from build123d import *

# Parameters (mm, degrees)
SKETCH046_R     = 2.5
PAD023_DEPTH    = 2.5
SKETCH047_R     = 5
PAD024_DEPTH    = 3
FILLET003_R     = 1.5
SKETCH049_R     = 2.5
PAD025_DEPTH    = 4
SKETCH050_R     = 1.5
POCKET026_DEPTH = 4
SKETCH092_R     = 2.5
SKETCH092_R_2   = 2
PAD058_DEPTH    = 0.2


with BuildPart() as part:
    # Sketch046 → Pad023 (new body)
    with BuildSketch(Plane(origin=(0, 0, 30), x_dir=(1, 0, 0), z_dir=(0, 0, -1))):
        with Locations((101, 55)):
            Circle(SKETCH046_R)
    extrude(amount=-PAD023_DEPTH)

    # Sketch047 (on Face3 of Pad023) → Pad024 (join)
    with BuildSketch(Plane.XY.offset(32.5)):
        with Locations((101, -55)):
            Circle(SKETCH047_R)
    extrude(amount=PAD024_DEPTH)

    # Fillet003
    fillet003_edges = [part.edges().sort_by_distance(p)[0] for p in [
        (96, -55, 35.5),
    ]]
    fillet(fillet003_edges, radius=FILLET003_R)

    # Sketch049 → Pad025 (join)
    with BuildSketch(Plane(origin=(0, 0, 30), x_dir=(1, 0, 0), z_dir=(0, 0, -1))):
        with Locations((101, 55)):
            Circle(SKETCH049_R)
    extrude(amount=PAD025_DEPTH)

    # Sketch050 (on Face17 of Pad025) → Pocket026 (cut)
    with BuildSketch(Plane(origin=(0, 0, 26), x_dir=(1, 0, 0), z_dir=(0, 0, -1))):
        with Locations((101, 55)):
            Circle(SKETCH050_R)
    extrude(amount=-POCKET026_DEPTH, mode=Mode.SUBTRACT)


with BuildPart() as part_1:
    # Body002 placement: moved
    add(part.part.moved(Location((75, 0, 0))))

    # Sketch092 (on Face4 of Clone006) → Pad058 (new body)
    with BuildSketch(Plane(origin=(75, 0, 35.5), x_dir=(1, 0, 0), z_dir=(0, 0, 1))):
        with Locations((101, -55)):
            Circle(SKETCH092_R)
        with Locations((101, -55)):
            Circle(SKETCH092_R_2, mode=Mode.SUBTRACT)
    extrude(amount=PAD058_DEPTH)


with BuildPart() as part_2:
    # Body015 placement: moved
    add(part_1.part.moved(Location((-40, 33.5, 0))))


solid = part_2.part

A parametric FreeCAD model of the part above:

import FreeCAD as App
import Part
import Sketcher
Q = App.Units.Quantity


def edges_at(feature, points):
    """Names of the edges that pass closest to the given points."""
    edges = feature.Shape.Edges
    near = lambda p: min(range(len(edges)), key=lambda i: edges[i].distToShape(Part.Vertex(*p))[0])
    return sorted({f"Edge{near(p) + 1}" for p in points})

doc = App.newDocument("Part")
body = doc.addObject("PartDesign::Body", "Body")

# Sketch on XY plane
sketch1 = body.newObject("Sketcher::SketchObject", "Sketch")
sketch1.AttachmentSupport = (doc.getObject("XY_Plane"), [""])
sketch1.MapMode = "FlatFace"
sketch1.AttachmentOffset = App.Placement(App.Vector(0, 0, 30), App.Rotation())
sketch1.addGeometry(Part.Circle(App.Vector(101, -55, 0), App.Vector(0, 0, 1), 2.5), False)
sketch1.addConstraint(Sketcher.Constraint("Diameter", 0, Q("5 mm")))
sketch1.addConstraint(Sketcher.Constraint("DistanceX", -1, 1, 0, 3, Q("101 mm")))
sketch1.addConstraint(Sketcher.Constraint("DistanceY", 0, 3, -1, 1, Q("55 mm")))
pad1 = body.newObject("PartDesign::Pad", "Pad")
pad1.Profile = sketch1
pad1.Length = 2.5

# Sketch on XY plane
sketch2 = body.newObject("Sketcher::SketchObject", "Sketch001")
sketch2.AttachmentSupport = (doc.getObject("XY_Plane"), [""])
sketch2.MapMode = "FlatFace"
sketch2.AttachmentOffset = App.Placement(App.Vector(0, 0, 32.5), App.Rotation())
sketch2.addGeometry(Part.Circle(App.Vector(101, -55, 0), App.Vector(0, 0, 1), 5), False)
sketch2.addConstraint(Sketcher.Constraint("Diameter", 0, Q("10 mm")))
sketch2.addConstraint(Sketcher.Constraint("DistanceX", -1, 1, 0, 3, Q("101 mm")))
sketch2.addConstraint(Sketcher.Constraint("DistanceY", 0, 3, -1, 1, Q("55 mm")))
pad2 = body.newObject("PartDesign::Pad", "Pad001")
pad2.Profile = sketch2
pad2.Length = 3
doc.recompute()

fillet = body.newObject("PartDesign::Fillet", "Fillet")
fillet.Base = (pad2, edges_at(pad2, [(96, -55, 35.5)]))
fillet.Radius = 1.5

# Sketch on XY plane
sketch3 = body.newObject("Sketcher::SketchObject", "Sketch002")
sketch3.AttachmentSupport = (doc.getObject("XY_Plane"), [""])
sketch3.MapMode = "FlatFace"
sketch3.AttachmentOffset = App.Placement(App.Vector(0, 0, 30), App.Rotation())
sketch3.addGeometry(Part.Circle(App.Vector(101, -55, 0), App.Vector(0, 0, 1), 2.5), False)
sketch3.addConstraint(Sketcher.Constraint("Diameter", 0, Q("5 mm")))
sketch3.addConstraint(Sketcher.Constraint("DistanceX", -1, 1, 0, 3, Q("101 mm")))
sketch3.addConstraint(Sketcher.Constraint("DistanceY", 0, 3, -1, 1, Q("55 mm")))
pad3 = body.newObject("PartDesign::Pad", "Pad002")
pad3.Profile = sketch3
pad3.Length = 4
pad3.Reversed = True

# Sketch on XY plane
sketch4 = body.newObject("Sketcher::SketchObject", "Sketch003")
sketch4.AttachmentSupport = (doc.getObject("XY_Plane"), [""])
sketch4.MapMode = "FlatFace"
sketch4.AttachmentOffset = App.Placement(App.Vector(0, 0, 26), App.Rotation())
sketch4.addGeometry(Part.Circle(App.Vector(101, -55, 0), App.Vector(0, 0, 1), 1.5), False)
sketch4.addConstraint(Sketcher.Constraint("Diameter", 0, Q("3 mm")))
sketch4.addConstraint(Sketcher.Constraint("DistanceX", -1, 1, 0, 3, Q("101 mm")))
sketch4.addConstraint(Sketcher.Constraint("DistanceY", 0, 3, -1, 1, Q("55 mm")))
pocket1 = body.newObject("PartDesign::Pocket", "Pocket")
pocket1.Profile = sketch4
pocket1.Length = 4
pocket1.Reversed = True
body2 = doc.addObject("PartDesign::Body", "Body001")
doc.recompute()

body.Placement = App.Placement(App.Vector(75, 0, 0), App.Rotation(App.Vector(0, 0, 1), 0))
boolean = body2.newObject("PartDesign::Boolean", "Boolean")
boolean.Type = "Fuse"
boolean.addObjects([body])

# Sketch on XY plane
sketch5 = body2.newObject("Sketcher::SketchObject", "Sketch004")
sketch5.AttachmentSupport = (doc.getObject("XY_Plane001"), [""])
sketch5.MapMode = "FlatFace"
sketch5.AttachmentOffset = App.Placement(App.Vector(0, 0, 35.5), App.Rotation())
sketch5.addGeometry(Part.Circle(App.Vector(176, -55, 0), App.Vector(0, 0, 1), 2.5), False)
sketch5.addGeometry(Part.Circle(App.Vector(176, -55, 0), App.Vector(0, 0, 1), 2), False)
sketch5.addConstraint(Sketcher.Constraint("Coincident", 1, 3, 0, 3))
sketch5.addConstraint(Sketcher.Constraint("Diameter", 0, Q("5 mm")))
sketch5.addConstraint(Sketcher.Constraint("Diameter", 1, Q("4 mm")))
sketch5.addConstraint(Sketcher.Constraint("DistanceX", -1, 1, 0, 3, Q("176 mm")))
sketch5.addConstraint(Sketcher.Constraint("DistanceY", 0, 3, -1, 1, Q("55 mm")))
pad4 = body2.newObject("PartDesign::Pad", "Pad003")
pad4.Profile = sketch5
pad4.Length = 0.2
body3 = doc.addObject("PartDesign::Body", "Body002")
doc.recompute()

body2.Placement = App.Placement(App.Vector(-40, 33.5, 0), App.Rotation(App.Vector(0, 0, 1), 0))
boolean2 = body3.newObject("PartDesign::Boolean", "Boolean001")
boolean2.Type = "Fuse"
boolean2.addObjects([body2])

doc.recompute()
